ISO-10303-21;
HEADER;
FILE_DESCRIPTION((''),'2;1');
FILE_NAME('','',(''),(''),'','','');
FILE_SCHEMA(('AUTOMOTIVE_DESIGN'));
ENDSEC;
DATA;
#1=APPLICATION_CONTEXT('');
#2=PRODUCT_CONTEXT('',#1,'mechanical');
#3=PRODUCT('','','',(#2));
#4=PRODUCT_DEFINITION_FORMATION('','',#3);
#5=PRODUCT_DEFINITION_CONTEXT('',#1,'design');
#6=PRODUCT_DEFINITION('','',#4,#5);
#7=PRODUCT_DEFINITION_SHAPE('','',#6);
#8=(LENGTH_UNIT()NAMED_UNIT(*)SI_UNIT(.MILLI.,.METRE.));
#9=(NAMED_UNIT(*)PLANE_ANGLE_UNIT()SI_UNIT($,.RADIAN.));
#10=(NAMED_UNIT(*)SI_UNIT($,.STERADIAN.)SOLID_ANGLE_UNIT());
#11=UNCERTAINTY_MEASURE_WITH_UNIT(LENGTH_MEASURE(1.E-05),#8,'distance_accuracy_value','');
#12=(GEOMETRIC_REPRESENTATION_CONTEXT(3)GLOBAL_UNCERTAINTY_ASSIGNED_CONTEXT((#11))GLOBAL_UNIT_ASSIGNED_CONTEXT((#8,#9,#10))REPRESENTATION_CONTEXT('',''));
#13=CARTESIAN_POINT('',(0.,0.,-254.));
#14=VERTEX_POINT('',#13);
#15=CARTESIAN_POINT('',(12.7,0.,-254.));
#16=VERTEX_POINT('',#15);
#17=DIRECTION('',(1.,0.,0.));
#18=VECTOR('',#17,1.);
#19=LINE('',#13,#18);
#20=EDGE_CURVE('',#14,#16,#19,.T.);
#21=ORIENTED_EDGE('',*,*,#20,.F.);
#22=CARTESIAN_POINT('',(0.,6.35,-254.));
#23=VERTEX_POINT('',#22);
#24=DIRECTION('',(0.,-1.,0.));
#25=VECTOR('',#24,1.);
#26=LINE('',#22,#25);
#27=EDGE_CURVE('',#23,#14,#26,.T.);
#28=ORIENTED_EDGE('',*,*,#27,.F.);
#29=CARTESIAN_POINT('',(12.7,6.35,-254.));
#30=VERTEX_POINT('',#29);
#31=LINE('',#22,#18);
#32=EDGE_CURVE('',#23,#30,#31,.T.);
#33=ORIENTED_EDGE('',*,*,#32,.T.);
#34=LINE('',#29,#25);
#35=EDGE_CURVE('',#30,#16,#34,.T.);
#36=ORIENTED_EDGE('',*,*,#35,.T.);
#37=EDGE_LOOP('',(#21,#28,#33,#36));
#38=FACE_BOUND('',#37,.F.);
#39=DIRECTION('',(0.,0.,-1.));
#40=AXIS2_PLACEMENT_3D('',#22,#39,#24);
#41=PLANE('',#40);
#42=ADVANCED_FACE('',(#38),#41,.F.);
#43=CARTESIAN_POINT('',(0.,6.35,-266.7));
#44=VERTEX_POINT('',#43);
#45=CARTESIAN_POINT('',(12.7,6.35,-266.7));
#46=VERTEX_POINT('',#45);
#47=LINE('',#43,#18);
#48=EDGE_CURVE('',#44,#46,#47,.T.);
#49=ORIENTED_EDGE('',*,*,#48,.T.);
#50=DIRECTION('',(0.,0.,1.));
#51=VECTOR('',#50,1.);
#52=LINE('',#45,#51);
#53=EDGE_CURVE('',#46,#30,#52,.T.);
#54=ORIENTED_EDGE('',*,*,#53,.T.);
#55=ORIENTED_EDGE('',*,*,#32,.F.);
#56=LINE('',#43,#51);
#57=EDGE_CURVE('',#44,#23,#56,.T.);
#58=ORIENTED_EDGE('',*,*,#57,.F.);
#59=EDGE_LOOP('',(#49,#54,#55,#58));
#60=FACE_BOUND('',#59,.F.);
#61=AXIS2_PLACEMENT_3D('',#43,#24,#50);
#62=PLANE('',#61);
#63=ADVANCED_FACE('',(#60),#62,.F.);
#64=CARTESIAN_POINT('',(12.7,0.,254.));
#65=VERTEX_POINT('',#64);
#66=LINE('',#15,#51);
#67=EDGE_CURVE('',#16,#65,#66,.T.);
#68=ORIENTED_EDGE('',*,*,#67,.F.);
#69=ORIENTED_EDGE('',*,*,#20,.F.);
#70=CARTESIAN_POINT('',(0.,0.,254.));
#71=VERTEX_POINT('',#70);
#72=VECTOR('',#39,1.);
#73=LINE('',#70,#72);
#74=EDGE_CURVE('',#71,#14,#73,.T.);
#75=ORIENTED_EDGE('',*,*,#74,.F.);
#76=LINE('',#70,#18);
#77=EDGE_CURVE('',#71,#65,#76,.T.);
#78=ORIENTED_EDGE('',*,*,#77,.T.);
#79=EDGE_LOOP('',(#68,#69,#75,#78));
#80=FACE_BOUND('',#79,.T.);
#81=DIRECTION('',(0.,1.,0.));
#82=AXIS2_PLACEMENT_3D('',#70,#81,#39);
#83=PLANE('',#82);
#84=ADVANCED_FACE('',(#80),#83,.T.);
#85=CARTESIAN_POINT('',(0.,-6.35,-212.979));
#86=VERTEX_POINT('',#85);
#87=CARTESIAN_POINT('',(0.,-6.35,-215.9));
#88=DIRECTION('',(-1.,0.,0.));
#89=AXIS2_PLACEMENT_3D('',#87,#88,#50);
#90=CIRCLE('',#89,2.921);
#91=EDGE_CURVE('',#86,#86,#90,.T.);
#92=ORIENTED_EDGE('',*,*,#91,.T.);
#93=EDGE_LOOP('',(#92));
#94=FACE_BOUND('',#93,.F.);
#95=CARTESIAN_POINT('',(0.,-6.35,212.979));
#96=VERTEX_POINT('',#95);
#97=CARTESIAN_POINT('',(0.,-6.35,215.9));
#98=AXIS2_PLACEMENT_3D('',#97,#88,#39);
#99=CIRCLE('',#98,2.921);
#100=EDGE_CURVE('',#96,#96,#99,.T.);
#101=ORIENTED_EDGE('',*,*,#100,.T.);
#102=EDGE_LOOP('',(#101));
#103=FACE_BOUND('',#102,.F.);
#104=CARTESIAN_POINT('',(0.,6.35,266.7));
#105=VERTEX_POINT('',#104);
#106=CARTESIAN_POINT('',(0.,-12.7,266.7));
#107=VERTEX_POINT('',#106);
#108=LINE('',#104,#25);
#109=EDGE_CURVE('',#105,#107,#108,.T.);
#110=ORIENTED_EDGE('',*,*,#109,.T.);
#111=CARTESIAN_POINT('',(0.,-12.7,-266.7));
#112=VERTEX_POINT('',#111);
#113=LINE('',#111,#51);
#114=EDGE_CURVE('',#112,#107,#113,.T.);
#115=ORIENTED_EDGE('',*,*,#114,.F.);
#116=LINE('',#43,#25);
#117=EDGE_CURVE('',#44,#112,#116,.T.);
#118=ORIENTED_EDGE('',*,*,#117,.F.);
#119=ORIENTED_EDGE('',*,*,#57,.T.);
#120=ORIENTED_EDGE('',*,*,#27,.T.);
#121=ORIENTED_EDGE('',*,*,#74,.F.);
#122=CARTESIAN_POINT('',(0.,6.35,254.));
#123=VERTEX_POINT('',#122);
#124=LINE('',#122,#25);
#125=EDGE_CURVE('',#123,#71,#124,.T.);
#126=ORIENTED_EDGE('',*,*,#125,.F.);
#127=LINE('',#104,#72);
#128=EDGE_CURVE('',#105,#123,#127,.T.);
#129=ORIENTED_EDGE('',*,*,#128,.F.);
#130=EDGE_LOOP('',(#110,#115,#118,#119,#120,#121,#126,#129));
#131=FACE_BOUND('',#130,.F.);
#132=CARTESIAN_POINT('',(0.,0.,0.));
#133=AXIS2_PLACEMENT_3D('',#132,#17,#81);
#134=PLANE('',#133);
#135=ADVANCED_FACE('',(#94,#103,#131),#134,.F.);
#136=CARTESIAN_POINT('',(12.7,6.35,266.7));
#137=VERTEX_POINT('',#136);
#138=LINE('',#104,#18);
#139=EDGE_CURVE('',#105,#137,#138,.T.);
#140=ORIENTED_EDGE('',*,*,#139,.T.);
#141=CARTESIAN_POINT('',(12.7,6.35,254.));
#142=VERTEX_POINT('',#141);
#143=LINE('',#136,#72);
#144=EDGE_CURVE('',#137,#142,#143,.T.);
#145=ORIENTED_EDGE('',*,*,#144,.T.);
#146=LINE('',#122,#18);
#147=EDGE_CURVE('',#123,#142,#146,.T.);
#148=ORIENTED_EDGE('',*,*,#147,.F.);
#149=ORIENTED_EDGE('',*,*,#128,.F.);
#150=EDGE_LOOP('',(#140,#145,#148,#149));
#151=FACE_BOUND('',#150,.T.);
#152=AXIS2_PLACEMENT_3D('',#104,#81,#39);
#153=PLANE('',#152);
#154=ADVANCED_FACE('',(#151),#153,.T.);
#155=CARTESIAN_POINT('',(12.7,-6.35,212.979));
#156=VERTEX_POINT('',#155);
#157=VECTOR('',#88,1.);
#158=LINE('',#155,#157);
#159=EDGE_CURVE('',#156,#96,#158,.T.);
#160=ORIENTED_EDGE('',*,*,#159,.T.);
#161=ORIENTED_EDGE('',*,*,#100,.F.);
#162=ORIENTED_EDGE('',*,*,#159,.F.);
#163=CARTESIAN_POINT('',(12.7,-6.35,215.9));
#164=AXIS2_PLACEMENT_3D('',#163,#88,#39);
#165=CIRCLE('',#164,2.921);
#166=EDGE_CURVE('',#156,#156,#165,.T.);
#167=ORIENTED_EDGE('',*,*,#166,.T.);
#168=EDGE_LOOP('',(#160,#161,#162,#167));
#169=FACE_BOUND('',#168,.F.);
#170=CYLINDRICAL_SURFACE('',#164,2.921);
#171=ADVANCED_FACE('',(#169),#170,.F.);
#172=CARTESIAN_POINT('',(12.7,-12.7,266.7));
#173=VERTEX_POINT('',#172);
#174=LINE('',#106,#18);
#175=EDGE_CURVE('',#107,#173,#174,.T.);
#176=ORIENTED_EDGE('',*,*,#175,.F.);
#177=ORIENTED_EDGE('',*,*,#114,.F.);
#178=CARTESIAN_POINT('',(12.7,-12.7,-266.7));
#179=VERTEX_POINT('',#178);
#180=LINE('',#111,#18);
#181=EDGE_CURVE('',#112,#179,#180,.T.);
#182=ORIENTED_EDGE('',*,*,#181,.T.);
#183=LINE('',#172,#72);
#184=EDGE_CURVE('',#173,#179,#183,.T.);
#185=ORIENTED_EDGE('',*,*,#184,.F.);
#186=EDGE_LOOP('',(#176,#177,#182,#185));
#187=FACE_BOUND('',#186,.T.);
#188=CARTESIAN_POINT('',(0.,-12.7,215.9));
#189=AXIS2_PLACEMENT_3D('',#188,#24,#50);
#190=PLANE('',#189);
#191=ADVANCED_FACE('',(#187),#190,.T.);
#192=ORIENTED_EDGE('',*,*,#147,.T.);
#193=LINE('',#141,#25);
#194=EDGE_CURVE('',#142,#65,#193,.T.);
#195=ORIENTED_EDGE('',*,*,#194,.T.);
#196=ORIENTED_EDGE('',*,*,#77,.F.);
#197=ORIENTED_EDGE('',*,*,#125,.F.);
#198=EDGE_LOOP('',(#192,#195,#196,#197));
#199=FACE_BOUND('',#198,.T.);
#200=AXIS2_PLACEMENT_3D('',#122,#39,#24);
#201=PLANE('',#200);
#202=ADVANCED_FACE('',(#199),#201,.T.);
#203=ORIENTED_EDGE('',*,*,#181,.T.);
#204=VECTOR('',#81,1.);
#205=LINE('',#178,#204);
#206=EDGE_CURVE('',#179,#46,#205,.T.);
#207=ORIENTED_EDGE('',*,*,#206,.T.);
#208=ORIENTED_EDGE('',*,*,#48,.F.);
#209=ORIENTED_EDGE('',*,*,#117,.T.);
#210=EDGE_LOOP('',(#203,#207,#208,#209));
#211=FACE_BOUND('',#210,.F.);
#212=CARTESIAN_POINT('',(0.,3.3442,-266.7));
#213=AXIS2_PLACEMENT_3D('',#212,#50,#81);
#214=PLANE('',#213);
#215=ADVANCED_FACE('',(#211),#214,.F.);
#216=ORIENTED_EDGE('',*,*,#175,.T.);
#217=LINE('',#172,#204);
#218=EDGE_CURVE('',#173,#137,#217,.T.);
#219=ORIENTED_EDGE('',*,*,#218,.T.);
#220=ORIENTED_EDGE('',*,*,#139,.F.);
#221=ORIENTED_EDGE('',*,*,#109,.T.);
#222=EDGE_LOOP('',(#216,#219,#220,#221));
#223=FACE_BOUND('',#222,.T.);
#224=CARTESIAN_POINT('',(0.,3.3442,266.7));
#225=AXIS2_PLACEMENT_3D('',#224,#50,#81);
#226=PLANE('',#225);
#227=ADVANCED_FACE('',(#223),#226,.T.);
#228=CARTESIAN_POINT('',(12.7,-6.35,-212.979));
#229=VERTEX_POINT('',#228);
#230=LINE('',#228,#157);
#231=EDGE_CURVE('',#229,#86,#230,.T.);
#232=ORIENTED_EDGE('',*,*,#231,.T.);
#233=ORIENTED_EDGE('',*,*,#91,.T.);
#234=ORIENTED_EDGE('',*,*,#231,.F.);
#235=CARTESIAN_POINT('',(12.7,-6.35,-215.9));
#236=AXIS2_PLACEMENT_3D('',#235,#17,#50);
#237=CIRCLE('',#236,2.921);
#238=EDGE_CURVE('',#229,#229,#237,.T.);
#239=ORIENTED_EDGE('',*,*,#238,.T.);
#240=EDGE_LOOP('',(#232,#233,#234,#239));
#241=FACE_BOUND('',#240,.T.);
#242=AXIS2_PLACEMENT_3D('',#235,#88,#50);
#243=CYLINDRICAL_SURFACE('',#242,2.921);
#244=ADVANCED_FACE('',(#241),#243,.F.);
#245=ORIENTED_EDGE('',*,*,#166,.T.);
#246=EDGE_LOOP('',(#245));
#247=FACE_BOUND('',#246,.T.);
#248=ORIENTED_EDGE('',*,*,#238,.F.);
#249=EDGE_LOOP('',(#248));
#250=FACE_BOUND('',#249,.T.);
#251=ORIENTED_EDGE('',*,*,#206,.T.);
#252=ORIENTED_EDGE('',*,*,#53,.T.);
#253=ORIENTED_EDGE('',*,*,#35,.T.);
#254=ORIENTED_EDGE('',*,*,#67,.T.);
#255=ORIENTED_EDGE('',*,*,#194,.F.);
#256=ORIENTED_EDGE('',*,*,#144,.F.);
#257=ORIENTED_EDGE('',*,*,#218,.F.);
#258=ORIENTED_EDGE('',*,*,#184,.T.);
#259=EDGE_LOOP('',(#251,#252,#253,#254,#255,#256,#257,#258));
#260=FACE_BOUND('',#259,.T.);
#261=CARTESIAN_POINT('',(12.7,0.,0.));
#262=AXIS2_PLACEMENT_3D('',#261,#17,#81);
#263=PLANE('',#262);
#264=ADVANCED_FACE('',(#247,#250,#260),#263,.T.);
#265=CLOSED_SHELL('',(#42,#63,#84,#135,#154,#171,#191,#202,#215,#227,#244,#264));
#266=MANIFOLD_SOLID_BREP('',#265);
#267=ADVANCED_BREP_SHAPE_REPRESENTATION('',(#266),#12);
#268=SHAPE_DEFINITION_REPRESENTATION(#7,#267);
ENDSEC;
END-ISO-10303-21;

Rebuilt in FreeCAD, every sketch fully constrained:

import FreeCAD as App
import Part
import Sketcher
Q = App.Units.Quantity

doc = App.newDocument("Part")
body = doc.addObject("PartDesign::Body", "Body")

# Sketch on YZ plane
sketch1 = body.newObject("Sketcher::SketchObject", "Sketch")
sketch1.AttachmentSupport = (doc.getObject("YZ_Plane"), [""])
sketch1.MapMode = "FlatFace"
sketch1.addGeometry([
    Part.LineSegment(App.Vector(6.35, 266.7, 0), App.Vector(-12.7, 266.7, 0)),  # 0
    Part.LineSegment(App.Vector(-12.7, 266.7, 0), App.Vector(-12.7, -266.7, 0)),  # 1
    Part.LineSegment(App.Vector(-12.7, -266.7, 0), App.Vector(6.35, -266.7, 0)),  # 2
    Part.LineSegment(App.Vector(6.35, -266.7, 0), App.Vector(6.35, -254, 0)),  # 3
    Part.LineSegment(App.Vector(6.35, -254, 0), App.Vector(0, -254, 0)),  # 4
    Part.LineSegment(App.Vector(0, -254, 0), App.Vector(0, 254, 0)),  # 5
    Part.LineSegment(App.Vector(0, 254, 0), App.Vector(6.35, 254, 0)),  # 6
    Part.LineSegment(App.Vector(6.35, 254, 0), App.Vector(6.35, 266.7, 0)),  # 7
], False)
sketch1.addConstraint([
    Sketcher.Constraint("Coincident", 0, 2, 1, 1),
    Sketcher.Constraint("Coincident", 1, 2, 2, 1),
    Sketcher.Constraint("Coincident", 2, 2, 3, 1),
    Sketcher.Constraint("Coincident", 3, 2, 4, 1),
    Sketcher.Constraint("Coincident", 4, 2, 5, 1),
    Sketcher.Constraint("Coincident", 5, 2, 6, 1),
    Sketcher.Constraint("Coincident", 6, 2, 7, 1),
    Sketcher.Constraint("Coincident", 7, 2, 0, 1),
    Sketcher.Constraint("Horizontal", 0),
    Sketcher.Constraint("Vertical", 1),
    Sketcher.Constraint("Horizontal", 2),
    Sketcher.Constraint("Vertical", 3),
    Sketcher.Constraint("Horizontal", 4),
    Sketcher.Constraint("Vertical", 5),
    Sketcher.Constraint("Horizontal", 6),
    Sketcher.Constraint("Vertical", 7),
    Sketcher.Constraint("Symmetric", 4, 2, 5, 2, -1, 1),
    Sketcher.Constraint("Symmetric", 2, 2, 7, 2, -1),
    Sketcher.Constraint("DistanceY", 3, 1, 3, 2, Q("0.5 in")),
    Sketcher.Constraint("DistanceY", 3, 2, -1, 1, Q("10 in")),
    Sketcher.Constraint("DistanceX", 4, 2, 4, 1, Q("0.25 in")),
    Sketcher.Constraint("DistanceX", 0, 2, -1, 1, Q("0.5 in")),
])
pad1 = body.newObject("PartDesign::Pad", "Pad")
pad1.Profile = sketch1
pad1.Length = Q("0.5 in")

# Sketch on YZ plane
sketch2 = body.newObject("Sketcher::SketchObject", "Sketch001")
sketch2.AttachmentSupport = (doc.getObject("YZ_Plane"), [""])
sketch2.MapMode = "FlatFace"
sketch2.AttachmentOffset = App.Placement(App.Vector(0, 0, 0.5 * 25.4), App.Rotation())
sketch2.addGeometry(Part.Circle(App.Vector(-6.35, 215.9, 0), App.Vector(0, 0, 1), 2.921), False)
sketch2.addConstraint([
    Sketcher.Constraint("Diameter", 0, Q("0.23 in")),
    Sketcher.Constraint("DistanceY", -1, 1, 0, 3, Q("8.5 in")),
    Sketcher.Constraint("DistanceX", 0, 3, -1, 1, Q("0.25 in")),
])
doc.recompute()
hole = body.newObject("PartDesign::Hole", "Hole")
hole.Profile = sketch2
hole.ThreadType = "None"
hole.Diameter = Q("0.23 in")
hole.DepthType = "ThroughAll"
doc.recompute()

mirrored = body.newObject("PartDesign::Mirrored", "Mirrored")
mirrored.Originals = [hole]
mirrored.MirrorPlane = (doc.getObject("XY_Plane"), [""])
body.Tip = mirrored

doc.recompute()
